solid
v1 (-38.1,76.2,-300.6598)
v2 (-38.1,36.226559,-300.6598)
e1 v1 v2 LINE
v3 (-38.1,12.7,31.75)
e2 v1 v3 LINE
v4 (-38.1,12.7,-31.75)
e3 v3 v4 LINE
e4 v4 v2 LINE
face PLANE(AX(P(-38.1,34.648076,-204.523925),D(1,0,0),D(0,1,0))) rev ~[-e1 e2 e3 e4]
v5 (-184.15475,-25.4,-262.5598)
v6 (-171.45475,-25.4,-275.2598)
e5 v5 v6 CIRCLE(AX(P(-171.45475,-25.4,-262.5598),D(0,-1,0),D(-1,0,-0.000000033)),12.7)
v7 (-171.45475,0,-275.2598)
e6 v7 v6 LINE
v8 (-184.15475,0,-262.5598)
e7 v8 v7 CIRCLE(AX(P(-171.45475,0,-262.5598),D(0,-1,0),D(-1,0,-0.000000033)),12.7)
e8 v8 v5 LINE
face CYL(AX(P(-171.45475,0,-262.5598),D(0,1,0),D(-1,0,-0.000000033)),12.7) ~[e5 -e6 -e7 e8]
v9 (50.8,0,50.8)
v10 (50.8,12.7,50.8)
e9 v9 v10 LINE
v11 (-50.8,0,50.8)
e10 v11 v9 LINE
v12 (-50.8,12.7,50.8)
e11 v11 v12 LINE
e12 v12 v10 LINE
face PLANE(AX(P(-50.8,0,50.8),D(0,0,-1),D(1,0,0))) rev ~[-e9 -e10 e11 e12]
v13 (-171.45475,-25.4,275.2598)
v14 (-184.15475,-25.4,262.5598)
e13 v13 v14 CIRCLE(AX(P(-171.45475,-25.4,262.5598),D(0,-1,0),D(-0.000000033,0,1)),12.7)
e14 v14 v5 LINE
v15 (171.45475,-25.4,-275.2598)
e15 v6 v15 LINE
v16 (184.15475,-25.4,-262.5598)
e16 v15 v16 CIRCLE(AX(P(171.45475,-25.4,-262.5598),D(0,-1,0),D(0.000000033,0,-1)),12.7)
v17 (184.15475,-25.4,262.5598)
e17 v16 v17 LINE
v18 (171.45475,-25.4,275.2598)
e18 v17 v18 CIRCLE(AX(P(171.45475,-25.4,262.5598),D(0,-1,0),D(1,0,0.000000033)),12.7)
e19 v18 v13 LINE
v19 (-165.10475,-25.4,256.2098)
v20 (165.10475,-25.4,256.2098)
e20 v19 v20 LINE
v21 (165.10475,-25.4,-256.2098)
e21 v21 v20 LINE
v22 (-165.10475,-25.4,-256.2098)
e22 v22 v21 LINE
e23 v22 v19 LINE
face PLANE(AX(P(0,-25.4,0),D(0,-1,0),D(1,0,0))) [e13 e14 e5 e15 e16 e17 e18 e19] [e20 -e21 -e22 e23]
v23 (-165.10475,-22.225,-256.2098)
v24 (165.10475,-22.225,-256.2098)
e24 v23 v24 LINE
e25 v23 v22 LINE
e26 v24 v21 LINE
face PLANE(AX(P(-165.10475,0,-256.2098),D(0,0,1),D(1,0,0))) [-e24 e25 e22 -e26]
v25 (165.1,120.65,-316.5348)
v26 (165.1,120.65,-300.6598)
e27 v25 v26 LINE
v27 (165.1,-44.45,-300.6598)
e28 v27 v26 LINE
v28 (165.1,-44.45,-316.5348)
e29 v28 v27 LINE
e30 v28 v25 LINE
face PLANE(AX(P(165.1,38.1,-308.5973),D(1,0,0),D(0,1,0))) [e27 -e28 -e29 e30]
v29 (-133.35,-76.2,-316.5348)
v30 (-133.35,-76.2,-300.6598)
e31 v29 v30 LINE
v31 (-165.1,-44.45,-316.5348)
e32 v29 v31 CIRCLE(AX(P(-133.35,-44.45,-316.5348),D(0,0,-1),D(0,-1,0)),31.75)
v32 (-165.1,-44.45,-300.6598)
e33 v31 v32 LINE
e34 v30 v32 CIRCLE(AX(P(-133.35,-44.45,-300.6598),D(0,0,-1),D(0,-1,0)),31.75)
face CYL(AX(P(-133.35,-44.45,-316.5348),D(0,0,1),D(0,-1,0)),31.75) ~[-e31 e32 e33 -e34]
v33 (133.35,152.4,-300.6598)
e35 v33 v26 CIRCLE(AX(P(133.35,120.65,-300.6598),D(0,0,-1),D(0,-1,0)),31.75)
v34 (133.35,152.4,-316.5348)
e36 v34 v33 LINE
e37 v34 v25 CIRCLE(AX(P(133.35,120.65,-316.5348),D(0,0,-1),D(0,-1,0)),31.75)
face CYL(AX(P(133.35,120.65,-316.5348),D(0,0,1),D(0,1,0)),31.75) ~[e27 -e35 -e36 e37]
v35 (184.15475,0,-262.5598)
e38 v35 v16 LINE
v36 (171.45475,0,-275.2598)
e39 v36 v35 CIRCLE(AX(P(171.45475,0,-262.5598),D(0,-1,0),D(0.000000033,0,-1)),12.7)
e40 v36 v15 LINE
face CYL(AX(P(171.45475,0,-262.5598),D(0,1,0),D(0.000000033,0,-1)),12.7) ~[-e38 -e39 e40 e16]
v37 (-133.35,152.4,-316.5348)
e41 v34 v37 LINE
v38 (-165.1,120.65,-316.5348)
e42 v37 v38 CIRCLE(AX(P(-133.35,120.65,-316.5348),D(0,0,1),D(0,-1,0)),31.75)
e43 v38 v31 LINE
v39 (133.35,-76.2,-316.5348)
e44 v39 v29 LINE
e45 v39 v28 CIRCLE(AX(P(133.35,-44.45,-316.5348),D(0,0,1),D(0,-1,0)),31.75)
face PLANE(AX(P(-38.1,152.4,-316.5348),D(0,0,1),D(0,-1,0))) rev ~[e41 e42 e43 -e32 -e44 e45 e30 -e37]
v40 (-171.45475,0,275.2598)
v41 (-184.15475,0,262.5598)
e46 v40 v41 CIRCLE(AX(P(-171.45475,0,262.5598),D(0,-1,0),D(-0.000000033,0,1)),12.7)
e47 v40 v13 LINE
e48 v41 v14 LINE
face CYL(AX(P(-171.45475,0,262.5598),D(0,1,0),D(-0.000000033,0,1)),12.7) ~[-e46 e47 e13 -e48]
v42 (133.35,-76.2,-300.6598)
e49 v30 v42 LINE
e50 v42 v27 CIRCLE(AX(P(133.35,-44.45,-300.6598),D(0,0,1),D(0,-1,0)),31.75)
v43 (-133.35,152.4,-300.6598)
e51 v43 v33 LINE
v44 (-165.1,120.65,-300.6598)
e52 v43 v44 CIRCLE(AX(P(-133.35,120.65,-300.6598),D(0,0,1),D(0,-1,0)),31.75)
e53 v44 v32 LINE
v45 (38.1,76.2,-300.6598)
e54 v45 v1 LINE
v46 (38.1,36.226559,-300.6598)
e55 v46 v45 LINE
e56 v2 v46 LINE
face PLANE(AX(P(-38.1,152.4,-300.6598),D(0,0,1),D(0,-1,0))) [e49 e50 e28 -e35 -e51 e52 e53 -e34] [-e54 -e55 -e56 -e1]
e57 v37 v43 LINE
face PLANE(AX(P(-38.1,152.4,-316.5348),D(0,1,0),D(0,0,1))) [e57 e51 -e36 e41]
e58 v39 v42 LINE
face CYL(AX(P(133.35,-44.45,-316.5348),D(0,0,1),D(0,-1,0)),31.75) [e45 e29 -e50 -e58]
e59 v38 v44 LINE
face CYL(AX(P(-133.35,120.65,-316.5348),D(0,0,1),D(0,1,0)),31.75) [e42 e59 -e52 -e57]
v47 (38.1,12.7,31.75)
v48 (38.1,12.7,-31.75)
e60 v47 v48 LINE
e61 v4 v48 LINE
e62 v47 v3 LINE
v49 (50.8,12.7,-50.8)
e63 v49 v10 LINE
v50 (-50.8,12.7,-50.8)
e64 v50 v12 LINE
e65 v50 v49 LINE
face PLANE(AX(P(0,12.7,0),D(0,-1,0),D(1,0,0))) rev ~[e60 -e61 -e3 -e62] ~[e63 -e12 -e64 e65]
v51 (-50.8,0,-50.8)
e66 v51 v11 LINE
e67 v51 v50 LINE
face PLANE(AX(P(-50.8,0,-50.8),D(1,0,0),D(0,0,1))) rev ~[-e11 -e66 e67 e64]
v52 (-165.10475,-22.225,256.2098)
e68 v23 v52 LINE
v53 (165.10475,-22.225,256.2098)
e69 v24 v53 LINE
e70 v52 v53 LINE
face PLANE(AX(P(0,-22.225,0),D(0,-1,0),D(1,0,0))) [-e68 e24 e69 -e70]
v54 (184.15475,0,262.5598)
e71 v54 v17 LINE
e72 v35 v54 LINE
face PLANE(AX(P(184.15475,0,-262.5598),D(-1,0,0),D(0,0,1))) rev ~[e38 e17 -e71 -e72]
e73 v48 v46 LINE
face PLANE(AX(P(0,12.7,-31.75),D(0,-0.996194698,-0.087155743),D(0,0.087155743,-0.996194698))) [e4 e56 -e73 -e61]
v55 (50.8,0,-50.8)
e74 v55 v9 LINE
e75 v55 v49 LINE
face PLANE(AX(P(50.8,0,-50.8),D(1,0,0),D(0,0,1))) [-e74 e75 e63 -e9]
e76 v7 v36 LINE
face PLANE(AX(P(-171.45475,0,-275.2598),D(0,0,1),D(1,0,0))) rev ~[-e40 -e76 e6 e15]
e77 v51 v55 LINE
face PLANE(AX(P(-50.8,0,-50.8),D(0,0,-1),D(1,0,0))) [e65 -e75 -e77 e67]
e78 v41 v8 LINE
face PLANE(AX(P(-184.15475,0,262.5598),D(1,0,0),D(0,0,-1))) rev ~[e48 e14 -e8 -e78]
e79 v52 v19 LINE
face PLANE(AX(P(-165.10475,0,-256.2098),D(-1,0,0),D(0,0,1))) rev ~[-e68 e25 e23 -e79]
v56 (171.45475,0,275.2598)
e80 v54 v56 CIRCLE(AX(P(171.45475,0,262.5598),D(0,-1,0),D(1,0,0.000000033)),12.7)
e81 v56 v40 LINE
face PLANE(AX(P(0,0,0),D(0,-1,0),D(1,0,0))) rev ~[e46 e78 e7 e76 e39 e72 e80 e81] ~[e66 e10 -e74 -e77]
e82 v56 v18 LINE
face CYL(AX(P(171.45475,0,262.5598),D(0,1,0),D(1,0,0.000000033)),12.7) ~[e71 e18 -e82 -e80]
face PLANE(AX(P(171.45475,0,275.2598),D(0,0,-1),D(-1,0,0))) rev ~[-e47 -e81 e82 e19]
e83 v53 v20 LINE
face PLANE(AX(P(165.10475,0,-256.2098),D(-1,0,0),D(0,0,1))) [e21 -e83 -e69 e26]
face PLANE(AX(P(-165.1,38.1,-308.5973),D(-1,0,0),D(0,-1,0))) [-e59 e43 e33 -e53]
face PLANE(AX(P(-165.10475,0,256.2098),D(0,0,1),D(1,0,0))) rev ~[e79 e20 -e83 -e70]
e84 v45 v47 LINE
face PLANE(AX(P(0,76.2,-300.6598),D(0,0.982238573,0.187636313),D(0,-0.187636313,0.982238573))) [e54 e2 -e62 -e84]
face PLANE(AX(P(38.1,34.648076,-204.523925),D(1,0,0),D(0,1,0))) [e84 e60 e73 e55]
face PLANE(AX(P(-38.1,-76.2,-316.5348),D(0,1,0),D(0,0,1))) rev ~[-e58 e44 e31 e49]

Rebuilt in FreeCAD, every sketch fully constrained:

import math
import FreeCAD as App
import Part
import Sketcher

V = App.Vector
Q = App.Units.Quantity


def edges_at(feature, points):
    """Names of the edges that pass closest to the given points."""
    edges = feature.Shape.Edges
    near = lambda p: min(range(len(edges)), key=lambda i: edges[i].distToShape(Part.Vertex(*p))[0])
    return sorted({f"Edge{near(p) + 1}" for p in points})


def add_polygon(sketch, points):
    """Adds a closed chain of lines whose ends are joined by coincident constraints."""
    first, n = sketch.GeometryCount, len(points)
    for a, b in zip(points, points[1:] + points[:1]):
        sketch.addGeometry(Part.LineSegment(App.Vector(*a, 0), App.Vector(*b, 0)), False)
    for i in range(n):
        sketch.addConstraint(Sketcher.Constraint("Coincident", first + i, 2, first + (i + 1) % n, 1))

doc = App.newDocument("Part")
body = doc.addObject("PartDesign::Body", "Body")

# Sketch on XZ plane
sketch1 = body.newObject("Sketcher::SketchObject", "Sketch")
sketch1.AttachmentSupport = (doc.getObject("XZ_Plane"), [""])
sketch1.MapMode = "FlatFace"
sketch1.addGeometry(Part.LineSegment(V(184, -263, 0), V(184, 263, 0)), False)  # 0
sketch1.addGeometry(Part.ArcOfCircle(Part.Circle(V(171, 263, 0), V(0, 0, 1), 13), math.radians(0), math.radians(90)), False)  # 1
sketch1.addGeometry(Part.LineSegment(V(171, 275, 0), V(-171, 275, 0)), False)  # 2
sketch1.addGeometry(Part.ArcOfCircle(Part.Circle(V(-171, 263, 0), V(0, 0, 1), 13), math.radians(90), math.radians(180)), False)  # 3
sketch1.addGeometry(Part.LineSegment(V(-184, 263, 0), V(-184, -263, 0)), False)  # 4
sketch1.addGeometry(Part.ArcOfCircle(Part.Circle(V(-171, -263, 0), V(0, 0, 1), 13), math.radians(-180), math.radians(-90)), False)  # 5
sketch1.addGeometry(Part.LineSegment(V(-171, -275, 0), V(171, -275, 0)), False)  # 6
sketch1.addGeometry(Part.ArcOfCircle(Part.Circle(V(171, -263, 0), V(0, 0, 1), 13), math.radians(-90), math.radians(0)), False)  # 7
add_polygon(sketch1, [(165, -256), (-165, -256), (-165, 256), (165, 256)])  # lines 8-11
sketch1.addConstraint([
    Sketcher.Constraint("Tangent", 0, 2, 1, 1),
    Sketcher.Constraint("Tangent", 1, 2, 2, 1),
    Sketcher.Constraint("Tangent", 2, 2, 3, 1),
    Sketcher.Constraint("Tangent", 3, 2, 4, 1),
    Sketcher.Constraint("Tangent", 4, 2, 5, 1),
    Sketcher.Constraint("Tangent", 5, 2, 6, 1),
    Sketcher.Constraint("Tangent", 6, 2, 7, 1),
    Sketcher.Constraint("Tangent", 7, 2, 0, 1),
    Sketcher.Constraint("Vertical", 0),
    Sketcher.Constraint("Horizontal", 2),
    Sketcher.Constraint("Vertical", 4),
    Sketcher.Constraint("Horizontal", 6),
    Sketcher.Constraint("Horizontal", 8),
    Sketcher.Constraint("Vertical", 9),
    Sketcher.Constraint("Horizontal", 10),
    Sketcher.Constraint("Vertical", 11),
    Sketcher.Constraint("Equal", 1, 3),
    Sketcher.Constraint("Equal", 3, 5),
    Sketcher.Constraint("Equal", 5, 7),
    Sketcher.Constraint("Symmetric", 1, 3, 5, 3, -1, 1),
    Sketcher.Constraint("Symmetric", 8, 2, 10, 2, -1, 1),
    Sketcher.Constraint("Radius", 1, Q("0.5 in")),
    Sketcher.Constraint("DistanceY", 0, 1, 0, 2, Q("20.674 in")),
    Sketcher.Constraint("DistanceY", 9, 1, 9, 2, Q("20.174 in")),
    Sketcher.Constraint("DistanceX", 5, 3, 8, 2, Q("0.25 in")),
    Sketcher.Constraint("DistanceX", 2, 2, 2, 1, Q("342.9095 mm")),
])
pad1 = body.newObject("PartDesign::Pad", "Pad")
pad1.Profile = sketch1
pad1.Length = Q("1 in")

# Sketch on XZ plane
sketch2 = body.newObject("Sketcher::SketchObject", "Sketch001")
sketch2.AttachmentSupport = (doc.getObject("XZ_Plane"), [""])
sketch2.MapMode = "FlatFace"
add_polygon(sketch2, [(-165, 256), (-165, -256), (165, -256), (165, 256)])  # lines 0-3
sketch2.addConstraint([
    Sketcher.Constraint("Vertical", 0),
    Sketcher.Constraint("Horizontal", 1),
    Sketcher.Constraint("Vertical", 2),
    Sketcher.Constraint("Horizontal", 3),
    Sketcher.Constraint("Symmetric", 0, 2, 2, 2, -1, 1),
    Sketcher.Constraint("DistanceY", 0, 2, 0, 1, Q("20.174 in")),
    Sketcher.Constraint("DistanceX", 1, 1, 1, 2, Q("330.2095 mm")),
])
pad2 = body.newObject("PartDesign::Pad", "Pad001")
pad2.Profile = sketch2
pad2.Length = Q("0.875 in")

# Sketch on XZ plane
sketch3 = body.newObject("Sketcher::SketchObject", "Sketch002")
sketch3.AttachmentSupport = (doc.getObject("XZ_Plane"), [""])
sketch3.MapMode = "FlatFace"
add_polygon(sketch3, [(-51, 51), (-51, -51), (51, -51), (51, 51)])  # lines 0-3
sketch3.addConstraint([
    Sketcher.Constraint("Vertical", 0),
    Sketcher.Constraint("Horizontal", 1),
    Sketcher.Constraint("Vertical", 2),
    Sketcher.Constraint("Horizontal", 3),
    Sketcher.Constraint("Symmetric", 0, 2, 2, 2, -1, 1),
    Sketcher.Constraint("Equal", 3, 0),
    Sketcher.Constraint("DistanceX", 1, 1, 1, 2, Q("4 in")),
])
pad3 = body.newObject("PartDesign::Pad", "Pad002")
pad3.Profile = sketch3
pad3.Length = Q("0.5 in")
pad3.Reversed = True

# Sketch on YZ plane
sketch4 = body.newObject("Sketcher::SketchObject", "Sketch003")
sketch4.AttachmentSupport = (doc.getObject("YZ_Plane"), [""])
sketch4.MapMode = "FlatFace"
add_polygon(sketch4, [(13, 32), (13, -32), (36, -301), (-76, -301), (-76, -317), (152, -317), (152, -301), (76, -301)])  # lines 0-7
sketch4.addConstraint([
    Sketcher.Constraint("Vertical", 0),
    Sketcher.Constraint("Horizontal", 2),
    Sketcher.Constraint("Vertical", 3),
    Sketcher.Constraint("Horizontal", 4),
    Sketcher.Constraint("Vertical", 5),
    Sketcher.Constraint("Horizontal", 6),
    Sketcher.Constraint("Symmetric", 2, 2, 6, 2, -2),
    Sketcher.Constraint("DistanceX", 4, 1, 4, 2, Q("9 in")),
    Sketcher.Constraint("DistanceX", 6, 2, 6, 1, Q("3 in")),
    Sketcher.Constraint("DistanceY", 0, 2, 0, 1, Q("2.5 in")),
    Sketcher.Constraint("Angle", 1, Q("-85 deg")),
    Sketcher.Constraint("DistanceX", -1, 1, 0, 2, Q("0.5 in")),
    Sketcher.Constraint("DistanceY", 3, 2, 3, 1, Q("0.625 in")),
    Sketcher.Constraint("DistanceY", 0, 2, -1, 1, Q("1.25 in")),
    Sketcher.Constraint("DistanceY", 1, 2, -1, 1, Q("11.837 in")),
])
pad4 = body.newObject("PartDesign::Pad", "Pad003")
pad4.Profile = sketch4
pad4.Length = Q("3 in")
pad4.Midplane = True

# Sketch on YZ plane
sketch5 = body.newObject("Sketcher::SketchObject", "Sketch004")
sketch5.AttachmentSupport = (doc.getObject("YZ_Plane"), [""])
sketch5.MapMode = "FlatFace"
sketch5.AttachmentOffset = App.Placement(V(0, 0, 1.5 * 25.4), App.Rotation())
add_polygon(sketch5, [(-76, -301), (-76, -317), (152, -317), (152, -301)])  # lines 0-3
sketch5.addConstraint([
    Sketcher.Constraint("Vertical", 0),
    Sketcher.Constraint("Horizontal", 1),
    Sketcher.Constraint("Vertical", 2),
    Sketcher.Constraint("Horizontal", 3),
    Sketcher.Constraint("DistanceX", 1, 1, 1, 2, Q("9 in")),
    Sketcher.Constraint("DistanceX", 0, 2, -1, 1, Q("3 in")),
    Sketcher.Constraint("DistanceY", 0, 2, 0, 1, Q("0.625 in")),
    Sketcher.Constraint("DistanceY", 0, 2, -1, 1, Q("12.462 in")),
])
pad5 = body.newObject("PartDesign::Pad", "Pad004")
pad5.Profile = sketch5
pad5.Length = Q("5 in")

# Sketch on YZ plane
sketch6 = body.newObject("Sketcher::SketchObject", "Sketch005")
sketch6.AttachmentSupport = (doc.getObject("YZ_Plane"), [""])
sketch6.MapMode = "FlatFace"
sketch6.AttachmentOffset = App.Placement(V(0, 0, -1.5 * 25.4), App.Rotation())
add_polygon(sketch6, [(152, -301), (152, -317), (-76, -317), (-76, -301)])  # lines 0-3
sketch6.addConstraint([
    Sketcher.Constraint("Vertical", 0),
    Sketcher.Constraint("Horizontal", 1),
    Sketcher.Constraint("Vertical", 2),
    Sketcher.Constraint("Horizontal", 3),
    Sketcher.Constraint("DistanceX", 1, 2, 1, 1, Q("9 in")),
    Sketcher.Constraint("DistanceX", -1, 1, 0, 2, Q("6 in")),
    Sketcher.Constraint("DistanceY", 0, 2, 0, 1, Q("0.625 in")),
    Sketcher.Constraint("DistanceY", 0, 2, -1, 1, Q("12.462 in")),
])
pad6 = body.newObject("PartDesign::Pad", "Pad005")
pad6.Profile = sketch6
pad6.Length = Q("5 in")
pad6.Reversed = True
doc.recompute()

fillet = body.newObject("PartDesign::Fillet", "Fillet")
fillet.Base = (pad6, edges_at(pad6, [
    (-165.1, 152.4, -308.597),
    (165.1, 152.4, -308.597),
    (165.1, -76.2, -308.597),
    (-165.1, -76.2, -308.597),
]))
fillet.Radius = Q("1.25 in")

doc.recompute()
